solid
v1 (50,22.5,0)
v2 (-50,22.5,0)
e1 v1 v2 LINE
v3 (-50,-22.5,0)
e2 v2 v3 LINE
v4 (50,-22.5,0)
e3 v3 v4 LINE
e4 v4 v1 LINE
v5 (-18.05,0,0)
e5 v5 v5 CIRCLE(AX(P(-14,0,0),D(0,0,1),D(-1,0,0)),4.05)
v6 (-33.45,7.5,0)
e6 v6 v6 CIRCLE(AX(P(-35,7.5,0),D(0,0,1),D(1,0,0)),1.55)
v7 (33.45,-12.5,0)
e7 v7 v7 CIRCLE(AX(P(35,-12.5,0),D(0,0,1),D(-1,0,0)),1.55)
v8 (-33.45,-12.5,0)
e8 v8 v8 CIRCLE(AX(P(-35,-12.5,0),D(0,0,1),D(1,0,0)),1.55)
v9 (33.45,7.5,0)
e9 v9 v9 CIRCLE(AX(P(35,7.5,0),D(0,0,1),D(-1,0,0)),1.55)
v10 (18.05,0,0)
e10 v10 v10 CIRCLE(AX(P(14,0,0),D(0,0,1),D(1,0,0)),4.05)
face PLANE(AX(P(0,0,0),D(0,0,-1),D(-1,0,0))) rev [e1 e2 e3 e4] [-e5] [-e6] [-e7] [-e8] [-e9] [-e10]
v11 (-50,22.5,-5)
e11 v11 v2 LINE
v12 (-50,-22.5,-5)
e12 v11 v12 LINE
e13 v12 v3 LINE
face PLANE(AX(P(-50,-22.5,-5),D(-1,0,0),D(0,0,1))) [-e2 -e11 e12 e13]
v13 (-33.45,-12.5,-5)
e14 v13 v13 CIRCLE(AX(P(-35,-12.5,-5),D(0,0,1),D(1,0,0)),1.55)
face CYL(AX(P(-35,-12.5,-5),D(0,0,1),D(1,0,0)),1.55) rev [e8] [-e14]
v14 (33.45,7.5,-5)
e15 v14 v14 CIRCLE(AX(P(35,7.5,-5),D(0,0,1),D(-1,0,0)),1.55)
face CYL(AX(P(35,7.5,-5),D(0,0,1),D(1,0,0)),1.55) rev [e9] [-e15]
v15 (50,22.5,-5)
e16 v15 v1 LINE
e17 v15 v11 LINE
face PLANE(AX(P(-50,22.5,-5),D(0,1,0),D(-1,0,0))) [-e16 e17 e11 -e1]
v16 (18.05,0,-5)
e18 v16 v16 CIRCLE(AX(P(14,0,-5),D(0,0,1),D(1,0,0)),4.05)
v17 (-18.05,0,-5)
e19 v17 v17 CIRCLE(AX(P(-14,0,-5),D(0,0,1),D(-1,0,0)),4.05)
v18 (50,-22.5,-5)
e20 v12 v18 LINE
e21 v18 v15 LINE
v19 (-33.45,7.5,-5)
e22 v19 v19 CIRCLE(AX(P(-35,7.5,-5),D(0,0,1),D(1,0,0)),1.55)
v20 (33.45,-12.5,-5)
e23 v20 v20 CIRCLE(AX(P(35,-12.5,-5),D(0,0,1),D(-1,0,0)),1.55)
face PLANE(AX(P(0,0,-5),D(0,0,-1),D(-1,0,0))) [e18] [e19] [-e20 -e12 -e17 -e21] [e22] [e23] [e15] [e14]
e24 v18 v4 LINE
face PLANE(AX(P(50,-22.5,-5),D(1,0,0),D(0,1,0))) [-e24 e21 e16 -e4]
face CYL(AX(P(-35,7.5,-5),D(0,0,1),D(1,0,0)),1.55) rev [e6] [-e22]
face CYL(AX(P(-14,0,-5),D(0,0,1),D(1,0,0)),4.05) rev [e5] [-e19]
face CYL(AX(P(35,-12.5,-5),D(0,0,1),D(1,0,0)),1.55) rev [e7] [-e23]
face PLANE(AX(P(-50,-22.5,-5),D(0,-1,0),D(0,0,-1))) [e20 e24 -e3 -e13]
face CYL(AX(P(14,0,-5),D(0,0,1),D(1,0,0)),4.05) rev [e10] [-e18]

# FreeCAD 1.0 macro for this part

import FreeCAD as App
import Part
import Sketcher

V = App.Vector
Q = App.Units.Quantity

doc = App.newDocument("Part")
body = doc.addObject("PartDesign::Body", "Body")

sketch1 = body.newObject("Sketcher::SketchObject", "Sketch")
sketch1.AttachmentSupport = (doc.getObject("XY_Plane"), [""])
sketch1.MapMode = "FlatFace"
sketch1.addGeometry([
    Part.LineSegment(V(-50, 22.5, 0), V(-50, -22.5, 0)),
    Part.LineSegment(V(-50, -22.5, 0), V(50, -22.5, 0)),
    Part.LineSegment(V(50, -22.5, 0), V(50, 22.5, 0)),
    Part.LineSegment(V(50, 22.5, 0), V(-50, 22.5, 0)),
    Part.Circle(V(-35, -12.5, 0), V(0, 0, 1), 1.6),
    Part.Circle(V(35, -12.5, 0), V(0, 0, 1), 1.6),
    Part.Circle(V(-14, 0, 0), V(0, 0, 1), 4),
    Part.Circle(V(-35, 7.5, 0), V(0, 0, 1), 1.6),
    Part.Circle(V(14, 0, 0), V(0, 0, 1), 4),
    Part.Circle(V(35, 7.5, 0), V(0, 0, 1), 1.6),
], False)
sketch1.addConstraint([
    Sketcher.Constraint("Coincident", 0, 2, 1, 1),
    Sketcher.Constraint("Coincident", 1, 2, 2, 1),
    Sketcher.Constraint("Coincident", 2, 2, 3, 1),
    Sketcher.Constraint("Coincident", 3, 2, 0, 1),
    Sketcher.Constraint("Vertical", 0),
    Sketcher.Constraint("Horizontal", 1),
    Sketcher.Constraint("Vertical", 2),
    Sketcher.Constraint("Horizontal", 3),
    Sketcher.Constraint("Equal", 4, 5),
    Sketcher.Constraint("Equal", 5, 7),
    Sketcher.Constraint("Equal", 6, 8),
    Sketcher.Constraint("Equal", 7, 9),
    Sketcher.Constraint("Symmetric", 6, 3, 8, 3, -1, 1),
    Sketcher.Constraint("Symmetric", 0, 2, 2, 2, -1, 1),
    Sketcher.Constraint("Symmetric", 4, 3, 5, 3, -2),
    Sketcher.Constraint("Symmetric", 7, 3, 9, 3, -2),
    Sketcher.Constraint("PointOnObject", 6, 3, -1),
    Sketcher.Constraint("Vertical", 4, 3, 7, 3),
    Sketcher.Constraint("Diameter", 4, Q("3.1 mm")),
    Sketcher.Constraint("Diameter", 6, Q("8.1 mm")),
    Sketcher.Constraint("DistanceX", 1, 1, 1, 2, Q("100 mm")),
    Sketcher.Constraint("DistanceY", 0, 2, 0, 1, Q("45 mm")),
    Sketcher.Constraint("DistanceX", 4, 3, -1, 1, Q("35 mm")),
    Sketcher.Constraint("DistanceX", 6, 3, -1, 1, Q("14 mm")),
    Sketcher.Constraint("DistanceY", 4, 3, 7, 3, Q("20 mm")),
    Sketcher.Constraint("DistanceY", 0, 2, 4, 3, Q("10 mm")),
])
pad1 = body.newObject("PartDesign::Pad", "Pad")
pad1.Profile = sketch1
pad1.Length = 5
pad1.Reversed = True

doc.recompute()
